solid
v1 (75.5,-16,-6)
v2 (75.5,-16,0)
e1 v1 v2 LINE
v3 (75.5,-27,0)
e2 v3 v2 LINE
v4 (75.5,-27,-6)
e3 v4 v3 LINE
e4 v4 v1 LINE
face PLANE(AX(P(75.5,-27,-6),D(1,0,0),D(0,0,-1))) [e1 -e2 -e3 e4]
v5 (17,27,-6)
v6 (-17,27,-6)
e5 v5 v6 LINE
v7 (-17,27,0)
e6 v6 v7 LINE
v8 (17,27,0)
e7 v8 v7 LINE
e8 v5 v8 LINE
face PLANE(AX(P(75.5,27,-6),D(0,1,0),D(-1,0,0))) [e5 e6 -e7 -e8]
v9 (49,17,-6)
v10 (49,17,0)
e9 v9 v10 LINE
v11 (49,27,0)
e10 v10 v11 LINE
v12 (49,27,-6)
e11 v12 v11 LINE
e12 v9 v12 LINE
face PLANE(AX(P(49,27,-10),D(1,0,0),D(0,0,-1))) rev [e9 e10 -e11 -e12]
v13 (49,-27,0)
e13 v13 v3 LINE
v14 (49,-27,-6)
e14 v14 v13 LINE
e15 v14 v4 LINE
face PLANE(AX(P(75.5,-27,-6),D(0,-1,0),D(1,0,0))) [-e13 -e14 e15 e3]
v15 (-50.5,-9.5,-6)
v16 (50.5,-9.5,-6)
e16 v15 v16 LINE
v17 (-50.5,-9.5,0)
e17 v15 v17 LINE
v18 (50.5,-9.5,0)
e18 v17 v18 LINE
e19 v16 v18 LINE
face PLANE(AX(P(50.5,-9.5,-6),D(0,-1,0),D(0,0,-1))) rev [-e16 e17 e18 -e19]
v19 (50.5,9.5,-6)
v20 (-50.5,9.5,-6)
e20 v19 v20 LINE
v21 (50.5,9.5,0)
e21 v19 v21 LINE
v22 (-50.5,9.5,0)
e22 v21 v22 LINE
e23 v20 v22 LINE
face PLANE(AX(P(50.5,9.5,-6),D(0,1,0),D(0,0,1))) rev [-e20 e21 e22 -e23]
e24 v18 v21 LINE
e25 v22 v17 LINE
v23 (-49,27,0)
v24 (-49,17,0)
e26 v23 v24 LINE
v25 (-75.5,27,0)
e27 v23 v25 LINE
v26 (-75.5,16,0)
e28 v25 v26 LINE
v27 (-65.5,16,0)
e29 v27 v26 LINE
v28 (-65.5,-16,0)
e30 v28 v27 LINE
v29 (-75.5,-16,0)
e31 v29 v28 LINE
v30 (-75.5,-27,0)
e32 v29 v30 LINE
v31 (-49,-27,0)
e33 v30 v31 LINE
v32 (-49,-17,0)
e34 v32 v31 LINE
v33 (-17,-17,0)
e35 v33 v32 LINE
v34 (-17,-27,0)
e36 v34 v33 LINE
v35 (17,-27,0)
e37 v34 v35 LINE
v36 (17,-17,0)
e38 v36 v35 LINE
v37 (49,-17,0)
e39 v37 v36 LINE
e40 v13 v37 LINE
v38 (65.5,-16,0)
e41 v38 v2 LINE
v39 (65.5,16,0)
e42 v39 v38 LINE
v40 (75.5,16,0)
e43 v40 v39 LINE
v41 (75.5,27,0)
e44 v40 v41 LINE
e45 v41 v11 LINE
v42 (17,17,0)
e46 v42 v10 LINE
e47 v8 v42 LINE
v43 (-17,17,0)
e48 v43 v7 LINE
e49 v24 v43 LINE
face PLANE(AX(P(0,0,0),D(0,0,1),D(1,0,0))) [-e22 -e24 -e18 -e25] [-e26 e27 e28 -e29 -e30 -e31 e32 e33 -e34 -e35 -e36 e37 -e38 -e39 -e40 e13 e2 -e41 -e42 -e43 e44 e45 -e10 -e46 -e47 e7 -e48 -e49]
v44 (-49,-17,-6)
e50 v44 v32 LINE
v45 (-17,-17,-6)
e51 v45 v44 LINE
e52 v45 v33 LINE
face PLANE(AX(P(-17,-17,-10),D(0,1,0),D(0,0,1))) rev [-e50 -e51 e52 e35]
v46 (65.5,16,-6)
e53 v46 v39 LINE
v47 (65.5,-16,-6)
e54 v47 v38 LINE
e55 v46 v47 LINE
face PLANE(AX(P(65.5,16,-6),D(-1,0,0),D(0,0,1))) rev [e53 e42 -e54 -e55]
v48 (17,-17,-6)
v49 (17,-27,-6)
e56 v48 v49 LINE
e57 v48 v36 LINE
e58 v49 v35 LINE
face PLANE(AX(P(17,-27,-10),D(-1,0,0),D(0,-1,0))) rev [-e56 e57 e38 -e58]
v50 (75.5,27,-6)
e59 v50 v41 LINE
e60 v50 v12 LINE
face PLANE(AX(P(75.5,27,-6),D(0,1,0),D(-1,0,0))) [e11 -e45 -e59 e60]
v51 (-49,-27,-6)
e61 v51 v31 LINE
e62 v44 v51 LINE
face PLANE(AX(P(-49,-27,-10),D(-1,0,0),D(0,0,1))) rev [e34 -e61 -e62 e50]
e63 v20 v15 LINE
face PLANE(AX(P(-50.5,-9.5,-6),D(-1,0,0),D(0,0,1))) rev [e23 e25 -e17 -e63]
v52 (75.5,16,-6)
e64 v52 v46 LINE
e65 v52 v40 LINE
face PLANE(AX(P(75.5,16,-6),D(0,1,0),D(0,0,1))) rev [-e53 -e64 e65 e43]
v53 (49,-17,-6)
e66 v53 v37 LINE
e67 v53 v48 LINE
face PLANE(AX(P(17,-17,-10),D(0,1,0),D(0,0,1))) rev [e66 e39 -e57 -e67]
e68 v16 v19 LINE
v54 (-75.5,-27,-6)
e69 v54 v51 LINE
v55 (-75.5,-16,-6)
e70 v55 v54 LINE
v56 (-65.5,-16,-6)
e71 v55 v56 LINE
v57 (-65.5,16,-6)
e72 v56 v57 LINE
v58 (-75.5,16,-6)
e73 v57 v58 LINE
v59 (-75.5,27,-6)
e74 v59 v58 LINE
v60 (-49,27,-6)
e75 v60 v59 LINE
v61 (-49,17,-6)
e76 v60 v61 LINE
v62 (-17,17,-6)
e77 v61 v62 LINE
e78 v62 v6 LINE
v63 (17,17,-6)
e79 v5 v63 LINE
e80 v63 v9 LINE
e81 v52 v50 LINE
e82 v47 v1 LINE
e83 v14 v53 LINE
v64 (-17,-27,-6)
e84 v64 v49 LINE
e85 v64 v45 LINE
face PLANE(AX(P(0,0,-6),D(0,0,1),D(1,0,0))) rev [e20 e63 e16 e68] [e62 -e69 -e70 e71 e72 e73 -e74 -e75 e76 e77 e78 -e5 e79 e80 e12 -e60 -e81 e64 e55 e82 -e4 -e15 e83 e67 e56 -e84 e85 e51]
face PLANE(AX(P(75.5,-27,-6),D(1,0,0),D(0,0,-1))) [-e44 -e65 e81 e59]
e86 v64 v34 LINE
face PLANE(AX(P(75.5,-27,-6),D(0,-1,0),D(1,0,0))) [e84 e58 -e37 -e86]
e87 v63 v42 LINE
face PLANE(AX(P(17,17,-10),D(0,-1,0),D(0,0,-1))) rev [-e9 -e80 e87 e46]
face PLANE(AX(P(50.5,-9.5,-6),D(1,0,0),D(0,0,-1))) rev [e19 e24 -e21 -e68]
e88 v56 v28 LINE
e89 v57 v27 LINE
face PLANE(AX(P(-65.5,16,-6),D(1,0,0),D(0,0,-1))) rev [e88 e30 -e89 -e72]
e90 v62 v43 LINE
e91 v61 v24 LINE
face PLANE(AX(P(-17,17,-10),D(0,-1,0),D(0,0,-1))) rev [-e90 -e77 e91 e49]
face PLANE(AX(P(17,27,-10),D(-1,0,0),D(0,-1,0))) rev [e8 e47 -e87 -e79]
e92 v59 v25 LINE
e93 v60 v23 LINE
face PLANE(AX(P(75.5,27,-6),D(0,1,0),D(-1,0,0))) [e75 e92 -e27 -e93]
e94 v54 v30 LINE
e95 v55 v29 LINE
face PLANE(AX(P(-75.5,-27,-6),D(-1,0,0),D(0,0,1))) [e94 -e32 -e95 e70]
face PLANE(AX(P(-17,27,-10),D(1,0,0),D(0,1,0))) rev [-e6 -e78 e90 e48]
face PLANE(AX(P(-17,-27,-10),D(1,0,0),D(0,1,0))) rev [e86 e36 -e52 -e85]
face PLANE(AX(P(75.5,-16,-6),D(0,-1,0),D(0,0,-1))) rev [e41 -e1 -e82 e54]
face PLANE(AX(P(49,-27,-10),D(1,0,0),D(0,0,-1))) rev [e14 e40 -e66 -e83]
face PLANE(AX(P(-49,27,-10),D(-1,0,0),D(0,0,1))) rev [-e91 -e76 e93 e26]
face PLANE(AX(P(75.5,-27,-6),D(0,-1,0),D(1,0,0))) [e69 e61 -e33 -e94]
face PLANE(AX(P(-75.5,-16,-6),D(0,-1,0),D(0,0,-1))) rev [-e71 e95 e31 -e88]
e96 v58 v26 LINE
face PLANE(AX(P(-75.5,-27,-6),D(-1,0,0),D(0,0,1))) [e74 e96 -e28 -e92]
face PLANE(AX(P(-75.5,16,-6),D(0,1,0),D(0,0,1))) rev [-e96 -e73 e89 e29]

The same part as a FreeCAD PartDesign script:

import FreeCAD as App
import Part
import Sketcher
from FreeCAD import Vector
Q = App.Units.Quantity


def add_polygon(sketch, points):
    """Adds a closed chain of lines whose ends are joined by coincident constraints."""
    first, n = sketch.GeometryCount, len(points)
    for a, b in zip(points, points[1:] + points[:1]):
        sketch.addGeometry(Part.LineSegment(App.Vector(*a, 0), App.Vector(*b, 0)), False)
    for i in range(n):
        sketch.addConstraint(Sketcher.Constraint("Coincident", first + i, 2, first + (i + 1) % n, 1))

doc = App.newDocument("Part")
body = doc.addObject("PartDesign::Body", "Body")

# Sketch on XY plane
sketch1 = body.newObject("Sketcher::SketchObject", "Sketch")
sketch1.AttachmentSupport = (doc.getObject("XY_Plane"), [""])
sketch1.MapMode = "FlatFace"
add_polygon(sketch1, [(-76, 27), (-76, -27), (76, -27), (76, 27)])  # lines 0-3
add_polygon(sketch1, [(50, -10), (-50, -10), (-50, 10), (50, 10)])  # lines 4-7
sketch1.addConstraint([
    Sketcher.Constraint("Vertical", 0),
    Sketcher.Constraint("Horizontal", 1),
    Sketcher.Constraint("Vertical", 2),
    Sketcher.Constraint("Horizontal", 3),
    Sketcher.Constraint("Horizontal", 4),
    Sketcher.Constraint("Vertical", 5),
    Sketcher.Constraint("Horizontal", 6),
    Sketcher.Constraint("Vertical", 7),
    Sketcher.Constraint("Symmetric", 0, 2, 2, 2, -1, 1),
    Sketcher.Constraint("Symmetric", 4, 2, 6, 2, -1, 1),
    Sketcher.Constraint("DistanceX", 1, 1, 1, 2, Q("151 mm")),
    Sketcher.Constraint("DistanceX", 4, 2, 4, 1, Q("101 mm")),
    Sketcher.Constraint("DistanceY", 0, 2, 0, 1, Q("54 mm")),
    Sketcher.Constraint("DistanceY", 5, 1, 5, 2, Q("19 mm")),
])
pad1 = body.newObject("PartDesign::Pad", "Pad")
pad1.Profile = sketch1
pad1.Length = 6
pad1.Reversed = True

# Sketch on XY plane
sketch2 = body.newObject("Sketcher::SketchObject", "Sketch001")
sketch2.AttachmentSupport = (doc.getObject("XY_Plane"), [""])
sketch2.MapMode = "FlatFace"
add_polygon(sketch2, [(-76, 16), (-76, -16), (-66, -16), (-66, 16)])  # lines 0-3
add_polygon(sketch2, [(66, 16), (66, -16), (76, -16), (76, 16)])  # lines 4-7
sketch2.addConstraint([
    Sketcher.Constraint("Vertical", 0),
    Sketcher.Constraint("Horizontal", 1),
    Sketcher.Constraint("Vertical", 2),
    Sketcher.Constraint("Horizontal", 3),
    Sketcher.Constraint("Vertical", 4),
    Sketcher.Constraint("Horizontal", 5),
    Sketcher.Constraint("Vertical", 6),
    Sketcher.Constraint("Horizontal", 7),
    Sketcher.Constraint("Symmetric", 2, 2, 4, 2, -1, 1),
    Sketcher.Constraint("Symmetric", 0, 2, 6, 2, -1, 1),
    Sketcher.Constraint("Horizontal", 1, 2, 4, 2),
    Sketcher.Constraint("DistanceX", 1, 1, 1, 2, Q("10 mm")),
    Sketcher.Constraint("DistanceY", 0, 2, 0, 1, Q("32 mm")),
    Sketcher.Constraint("DistanceX", 1, 2, 4, 2, Q("131 mm")),
])
pocket1 = body.newObject("PartDesign::Pocket", "Pocket")
pocket1.Profile = sketch2
pocket1.Length = 6

# Sketch on XY plane
sketch3 = body.newObject("Sketcher::SketchObject", "Sketch002")
sketch3.AttachmentSupport = (doc.getObject("XY_Plane"), [""])
sketch3.MapMode = "FlatFace"
add_polygon(sketch3, [(17, 27), (17, 17), (49, 17), (49, 27)])  # lines 0-3
add_polygon(sketch3, [(-49, 27), (-49, 17), (-17, 17), (-17, 27)])  # lines 4-7
add_polygon(sketch3, [(-49, -17), (-49, -27), (-17, -27), (-17, -17)])  # lines 8-11
add_polygon(sketch3, [(17, -17), (17, -27), (49, -27), (49, -17)])  # lines 12-15
sketch3.addConstraint([
    Sketcher.Constraint("Vertical", 0),
    Sketcher.Constraint("Horizontal", 1),
    Sketcher.Constraint("Vertical", 2),
    Sketcher.Constraint("Horizontal", 3),
    Sketcher.Constraint("Vertical", 4),
    Sketcher.Constraint("Horizontal", 5),
    Sketcher.Constraint("Vertical", 6),
    Sketcher.Constraint("Horizontal", 7),
    Sketcher.Constraint("Vertical", 8),
    Sketcher.Constraint("Horizontal", 9),
    Sketcher.Constraint("Vertical", 10),
    Sketcher.Constraint("Horizontal", 11),
    Sketcher.Constraint("Vertical", 12),
    Sketcher.Constraint("Horizontal", 13),
    Sketcher.Constraint("Vertical", 14),
    Sketcher.Constraint("Horizontal", 15),
    Sketcher.Constraint("Symmetric", 2, 2, 8, 2, -1, 1),
    Sketcher.Constraint("Symmetric", 0, 2, 10, 2, -1, 1),
    Sketcher.Constraint("Symmetric", 6, 2, 12, 2, -1, 1),
    Sketcher.Constraint("Symmetric", 4, 2, 14, 2, -1, 1),
    Sketcher.Constraint("Symmetric", 1, 2, 4, 2, -2),
    Sketcher.Constraint("Symmetric", 3, 2, 6, 2, -2),
    Sketcher.Constraint("DistanceX", 1, 1, 1, 2, Q("32 mm")),
    Sketcher.Constraint("DistanceY", 0, 2, 0, 1, Q("10 mm")),
    Sketcher.Constraint("DistanceX", -1, 1, 0, 2, Q("17 mm")),
    Sketcher.Constraint("DistanceY", -1, 1, 0, 2, Q("17 mm")),
])
pocket2 = body.newObject("PartDesign::Pocket", "Pocket001")
pocket2.Profile = sketch3
pocket2.Length = 10

doc.recompute()
